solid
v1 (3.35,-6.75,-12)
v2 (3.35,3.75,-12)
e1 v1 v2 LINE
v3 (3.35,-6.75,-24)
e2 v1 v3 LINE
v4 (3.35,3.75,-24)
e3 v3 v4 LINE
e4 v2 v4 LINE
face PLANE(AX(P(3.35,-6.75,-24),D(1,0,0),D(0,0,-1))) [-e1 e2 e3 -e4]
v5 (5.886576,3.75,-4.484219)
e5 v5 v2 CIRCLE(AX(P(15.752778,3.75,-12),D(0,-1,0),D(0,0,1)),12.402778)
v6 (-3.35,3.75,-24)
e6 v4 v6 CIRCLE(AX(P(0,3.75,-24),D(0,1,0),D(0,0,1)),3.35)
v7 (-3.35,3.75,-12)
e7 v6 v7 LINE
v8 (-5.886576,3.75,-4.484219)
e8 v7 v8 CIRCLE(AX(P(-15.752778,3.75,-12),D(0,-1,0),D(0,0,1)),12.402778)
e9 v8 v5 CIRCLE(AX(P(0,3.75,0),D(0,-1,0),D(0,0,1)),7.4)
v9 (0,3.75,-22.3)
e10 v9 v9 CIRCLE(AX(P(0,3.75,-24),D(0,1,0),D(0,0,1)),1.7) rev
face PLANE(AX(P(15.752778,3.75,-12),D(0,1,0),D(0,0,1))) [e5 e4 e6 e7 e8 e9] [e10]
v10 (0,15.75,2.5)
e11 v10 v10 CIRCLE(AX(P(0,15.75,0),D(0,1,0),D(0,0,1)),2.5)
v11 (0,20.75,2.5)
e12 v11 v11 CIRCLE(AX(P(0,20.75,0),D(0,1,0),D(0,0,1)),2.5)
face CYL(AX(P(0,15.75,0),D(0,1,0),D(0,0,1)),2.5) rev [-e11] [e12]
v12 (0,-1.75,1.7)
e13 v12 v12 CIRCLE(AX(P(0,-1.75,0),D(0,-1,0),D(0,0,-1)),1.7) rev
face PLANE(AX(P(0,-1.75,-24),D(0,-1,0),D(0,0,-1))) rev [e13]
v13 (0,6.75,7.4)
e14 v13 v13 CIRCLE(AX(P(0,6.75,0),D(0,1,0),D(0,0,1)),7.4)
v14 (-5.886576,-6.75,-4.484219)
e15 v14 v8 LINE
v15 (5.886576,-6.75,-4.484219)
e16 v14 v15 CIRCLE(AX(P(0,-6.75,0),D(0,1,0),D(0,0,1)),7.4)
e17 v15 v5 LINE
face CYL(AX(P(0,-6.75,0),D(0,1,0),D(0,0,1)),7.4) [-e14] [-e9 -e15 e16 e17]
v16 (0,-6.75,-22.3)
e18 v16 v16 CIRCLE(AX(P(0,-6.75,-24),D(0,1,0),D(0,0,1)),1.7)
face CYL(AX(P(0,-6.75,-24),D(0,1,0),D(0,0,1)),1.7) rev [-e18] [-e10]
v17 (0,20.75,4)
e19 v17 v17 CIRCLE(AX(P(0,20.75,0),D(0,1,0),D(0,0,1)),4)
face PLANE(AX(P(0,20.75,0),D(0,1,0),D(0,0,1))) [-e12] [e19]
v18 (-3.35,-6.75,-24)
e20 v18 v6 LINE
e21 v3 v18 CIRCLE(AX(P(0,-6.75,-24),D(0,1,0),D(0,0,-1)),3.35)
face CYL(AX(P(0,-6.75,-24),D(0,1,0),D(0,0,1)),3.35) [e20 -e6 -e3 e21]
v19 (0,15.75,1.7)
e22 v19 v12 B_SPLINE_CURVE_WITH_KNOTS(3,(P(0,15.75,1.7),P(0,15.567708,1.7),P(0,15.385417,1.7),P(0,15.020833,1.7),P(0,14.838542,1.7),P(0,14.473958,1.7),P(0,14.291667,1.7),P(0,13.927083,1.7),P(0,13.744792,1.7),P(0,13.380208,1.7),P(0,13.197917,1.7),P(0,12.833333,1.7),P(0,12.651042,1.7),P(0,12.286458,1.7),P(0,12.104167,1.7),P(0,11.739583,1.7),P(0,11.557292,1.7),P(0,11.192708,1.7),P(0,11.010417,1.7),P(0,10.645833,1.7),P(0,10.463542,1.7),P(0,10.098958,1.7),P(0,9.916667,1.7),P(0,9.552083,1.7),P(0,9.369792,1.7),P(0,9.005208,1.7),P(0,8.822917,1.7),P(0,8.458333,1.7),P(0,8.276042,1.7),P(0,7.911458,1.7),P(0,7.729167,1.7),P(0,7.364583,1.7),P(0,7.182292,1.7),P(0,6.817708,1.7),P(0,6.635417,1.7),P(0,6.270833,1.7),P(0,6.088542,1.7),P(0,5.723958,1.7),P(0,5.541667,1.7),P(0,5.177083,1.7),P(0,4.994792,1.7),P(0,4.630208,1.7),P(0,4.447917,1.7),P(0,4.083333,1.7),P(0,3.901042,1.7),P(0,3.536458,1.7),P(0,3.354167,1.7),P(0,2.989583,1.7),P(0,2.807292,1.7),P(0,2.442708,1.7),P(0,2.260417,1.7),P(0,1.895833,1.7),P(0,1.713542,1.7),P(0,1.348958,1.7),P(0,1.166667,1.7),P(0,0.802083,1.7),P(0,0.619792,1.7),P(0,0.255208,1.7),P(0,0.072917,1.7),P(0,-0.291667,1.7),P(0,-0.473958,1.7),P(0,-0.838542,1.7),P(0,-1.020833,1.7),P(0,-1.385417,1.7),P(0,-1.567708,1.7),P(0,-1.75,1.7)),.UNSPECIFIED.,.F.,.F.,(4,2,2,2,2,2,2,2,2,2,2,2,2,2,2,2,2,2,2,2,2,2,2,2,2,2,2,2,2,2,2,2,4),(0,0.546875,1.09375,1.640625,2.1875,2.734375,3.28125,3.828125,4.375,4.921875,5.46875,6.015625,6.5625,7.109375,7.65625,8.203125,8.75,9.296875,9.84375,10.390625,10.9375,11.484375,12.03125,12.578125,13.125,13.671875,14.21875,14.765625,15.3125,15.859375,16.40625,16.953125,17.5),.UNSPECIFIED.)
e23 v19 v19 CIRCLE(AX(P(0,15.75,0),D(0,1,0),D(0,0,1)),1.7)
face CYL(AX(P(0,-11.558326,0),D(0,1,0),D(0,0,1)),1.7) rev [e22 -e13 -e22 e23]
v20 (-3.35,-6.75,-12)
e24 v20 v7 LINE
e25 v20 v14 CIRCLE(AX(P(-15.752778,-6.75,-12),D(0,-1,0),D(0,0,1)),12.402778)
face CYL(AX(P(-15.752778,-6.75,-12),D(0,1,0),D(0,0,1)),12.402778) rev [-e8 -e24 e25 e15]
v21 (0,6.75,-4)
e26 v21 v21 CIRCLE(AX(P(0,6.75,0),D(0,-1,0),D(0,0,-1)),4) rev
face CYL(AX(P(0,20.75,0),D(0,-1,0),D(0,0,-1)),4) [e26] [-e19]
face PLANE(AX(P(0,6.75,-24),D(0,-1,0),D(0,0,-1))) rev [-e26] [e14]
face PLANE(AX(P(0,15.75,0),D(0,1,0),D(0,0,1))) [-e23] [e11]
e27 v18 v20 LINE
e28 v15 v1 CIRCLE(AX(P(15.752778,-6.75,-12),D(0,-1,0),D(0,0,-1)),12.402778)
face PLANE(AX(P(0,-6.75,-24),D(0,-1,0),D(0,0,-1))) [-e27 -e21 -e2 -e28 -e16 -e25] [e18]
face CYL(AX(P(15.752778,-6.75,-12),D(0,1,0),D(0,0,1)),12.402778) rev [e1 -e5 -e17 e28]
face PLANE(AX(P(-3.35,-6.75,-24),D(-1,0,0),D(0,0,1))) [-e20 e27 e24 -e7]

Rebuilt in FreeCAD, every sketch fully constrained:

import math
import FreeCAD as App
import Part
import Sketcher

doc = App.newDocument("Part")
params = doc.addObject("Spreadsheet::Sheet", "Params")
for row, (alias, value) in enumerate([
    ("sketch1_diameter", "3.4 mm"),
    ("sketch1_radius", "7.4 mm"),
    ("sketch1_height", "12 mm"),
    ("sketch1_radius2", "3.35 mm"),
    ("pad1_length", "6.75 mm"),
    ("pad1_length2", "6.75 mm"),
    ("sketch2_diameter", "8 mm"),
    ("pad2_length", "14 mm"),
    ("sketch3_diameter", "5 mm"),
    ("pocket1_length", "5 mm"),
    ("sketch4_diameter", "3.4 mm"),
    ("pocket2_length", "17.5 mm"),
    ("sketch5_radius", "7.4 mm"),
    ("sketch5_height", "12 mm"),
    ("sketch5_radius2", "3.35 mm"),
    ("pocket3_length", "3 mm"),
], start=1):
    params.set(f"A{row}", alias)
    params.set(f"B{row}", "=" + value)
    params.setAlias(f"B{row}", alias)

body = doc.addObject("PartDesign::Body", "Body")

# Sketch on XZ plane
sketch1 = body.newObject("Sketcher::SketchObject", "Sketch")
sketch1.AttachmentSupport = (doc.getObject("XZ_Plane"), [""])
sketch1.MapMode = "FlatFace"
sketch1.addGeometry(Part.LineSegment(App.Vector(-3.35, -24, 0), App.Vector(-3.35, -12, 0)), False)
sketch1.addGeometry(Part.ArcOfCircle(Part.Circle(App.Vector(-15.752778, -12, 0), App.Vector(0, 0, 1), 12.402778), math.radians(0), math.radians(37.299078)), False)
sketch1.addGeometry(Part.ArcOfCircle(Part.Circle(App.Vector(0, 0, 0), App.Vector(0, 0, 1), 7.4), math.radians(-37.299078), math.radians(217.299078)), False)
sketch1.addGeometry(Part.ArcOfCircle(Part.Circle(App.Vector(15.752778, -12, 0), App.Vector(0, 0, 1), 12.402778), math.radians(142.700922), math.radians(180)), False)
sketch1.addGeometry(Part.LineSegment(App.Vector(3.35, -12, 0), App.Vector(3.35, -24, 0)), False)
sketch1.addGeometry(Part.ArcOfCircle(Part.Circle(App.Vector(0, -24, 0), App.Vector(0, 0, 1), 3.35), math.radians(180), math.radians(360)), False)
sketch1.addGeometry(Part.Circle(App.Vector(0, -24, 0), App.Vector(0, 0, 1), 1.7), False)
sketch1.addConstraint(Sketcher.Constraint("Tangent", 0, 2, 1, 1))
sketch1.addConstraint(Sketcher.Constraint("Tangent", 1, 2, 2, 2))
sketch1.addConstraint(Sketcher.Constraint("Tangent", 2, 1, 3, 1))
sketch1.addConstraint(Sketcher.Constraint("Tangent", 3, 2, 4, 1))
sketch1.addConstraint(Sketcher.Constraint("Tangent", 4, 2, 5, 2))
sketch1.addConstraint(Sketcher.Constraint("Tangent", 5, 1, 0, 1))
sketch1.addConstraint(Sketcher.Constraint("Vertical", 0))
sketch1.addConstraint(Sketcher.Constraint("Vertical", 4))
sketch1.addConstraint(Sketcher.Constraint("Coincident", 2, 3, -1, 1))
sketch1.addConstraint(Sketcher.Constraint("Coincident", 6, 3, 5, 3))
sketch1.addConstraint(Sketcher.Constraint("Equal", 1, 3))
sketch1.addConstraint(Sketcher.Constraint("PointOnObject", 5, 3, -2))
sketch1.addConstraint(Sketcher.Constraint("Diameter", 6, 3.4))
sketch1.addConstraint(Sketcher.Constraint("Radius", 2, 7.4))
sketch1.addConstraint(Sketcher.Constraint("DistanceY", 0, 1, 0, 2, 12.0))
sketch1.addConstraint(Sketcher.Constraint("Radius", 5, 3.35))
sketch1.addConstraint(Sketcher.Constraint("DistanceY", 1, 3, -1, 1, 12.0))
sketch1.setExpression("Constraints[12]", "Params.sketch1_diameter")
sketch1.setExpression("Constraints[13]", "Params.sketch1_radius")
sketch1.setExpression("Constraints[14]", "Params.sketch1_height")
sketch1.setExpression("Constraints[15]", "Params.sketch1_radius2")
pad1 = body.newObject("PartDesign::Pad", "Pad")
pad1.Profile = sketch1
pad1.Type = "TwoLengths"
pad1.setExpression("Length", "Params.pad1_length")
pad1.setExpression("Length2", "Params.pad1_length2")
pad1.Reversed = True

# Sketch on XZ plane
sketch2 = body.newObject("Sketcher::SketchObject", "Sketch001")
sketch2.AttachmentSupport = (doc.getObject("XZ_Plane"), [""])
sketch2.MapMode = "FlatFace"
sketch2.AttachmentOffset = App.Placement(App.Vector(0, 0, -6.75), App.Rotation())
sketch2.addGeometry(Part.Circle(App.Vector(0, 0, 0), App.Vector(0, 0, 1), 4), False)
sketch2.addConstraint(Sketcher.Constraint("Coincident", 0, 3, -1, 1))
sketch2.addConstraint(Sketcher.Constraint("Diameter", 0, 8.0))
sketch2.setExpression("Constraints[1]", "Params.sketch2_diameter")
pad2 = body.newObject("PartDesign::Pad", "Pad001")
pad2.Profile = sketch2
pad2.setExpression("Length", "Params.pad2_length")
pad2.Reversed = True

# Sketch on XZ plane
sketch3 = body.newObject("Sketcher::SketchObject", "Sketch002")
sketch3.AttachmentSupport = (doc.getObject("XZ_Plane"), [""])
sketch3.MapMode = "FlatFace"
sketch3.AttachmentOffset = App.Placement(App.Vector(0, 0, -20.75), App.Rotation())
sketch3.addGeometry(Part.Circle(App.Vector(0, 0, 0), App.Vector(0, 0, 1), 2.5), False)
sketch3.addConstraint(Sketcher.Constraint("Coincident", 0, 3, -1, 1))
sketch3.addConstraint(Sketcher.Constraint("Diameter", 0, 5.0))
sketch3.setExpression("Constraints[1]", "Params.sketch3_diameter")
pocket1 = body.newObject("PartDesign::Pocket", "Pocket")
pocket1.Profile = sketch3
pocket1.setExpression("Length", "Params.pocket1_length")
pocket1.Reversed = True

# Sketch on XZ plane
sketch4 = body.newObject("Sketcher::SketchObject", "Sketch003")
sketch4.AttachmentSupport = (doc.getObject("XZ_Plane"), [""])
sketch4.MapMode = "FlatFace"
sketch4.AttachmentOffset = App.Placement(App.Vector(0, 0, -15.75), App.Rotation())
sketch4.addGeometry(Part.Circle(App.Vector(0, 0, 0), App.Vector(0, 0, 1), 1.7), False)
sketch4.addConstraint(Sketcher.Constraint("Coincident", 0, 3, -1, 1))
sketch4.addConstraint(Sketcher.Constraint("Diameter", 0, 3.4))
sketch4.setExpression("Constraints[1]", "Params.sketch4_diameter")
pocket2 = body.newObject("PartDesign::Pocket", "Pocket001")
pocket2.Profile = sketch4
pocket2.setExpression("Length", "Params.pocket2_length")
pocket2.Reversed = True

# Sketch on XZ plane
sketch5 = body.newObject("Sketcher::SketchObject", "Sketch004")
sketch5.AttachmentSupport = (doc.getObject("XZ_Plane"), [""])
sketch5.MapMode = "FlatFace"
sketch5.AttachmentOffset = App.Placement(App.Vector(0, 0, -3.75), App.Rotation())
sketch5.addGeometry(Part.LineSegment(App.Vector(3.35, -12, 0), App.Vector(3.35, -24, 0)), False)
sketch5.addGeometry(Part.ArcOfCircle(Part.Circle(App.Vector(0, -24, 0), App.Vector(0, 0, 1), 3.35), math.radians(180), math.radians(360)), False)
sketch5.addGeometry(Part.LineSegment(App.Vector(-3.35, -24, 0), App.Vector(-3.35, -12, 0)), False)
sketch5.addGeometry(Part.ArcOfCircle(Part.Circle(App.Vector(-15.752778, -12, 0), App.Vector(0, 0, 1), 12.402778), math.radians(0), math.radians(37.299078)), False)
sketch5.addGeometry(Part.ArcOfCircle(Part.Circle(App.Vector(0, 0, 0), App.Vector(0, 0, 1), 7.4), math.radians(-142.700922), math.radians(-37.299078)), False)
sketch5.addGeometry(Part.ArcOfCircle(Part.Circle(App.Vector(15.752778, -12, 0), App.Vector(0, 0, 1), 12.402778), math.radians(142.700922), math.radians(180)), False)
sketch5.addConstraint(Sketcher.Constraint("Tangent", 0, 2, 1, 2))
sketch5.addConstraint(Sketcher.Constraint("Tangent", 1, 1, 2, 1))
sketch5.addConstraint(Sketcher.Constraint("Tangent", 2, 2, 3, 1))
sketch5.addConstraint(Sketcher.Constraint("Tangent", 3, 2, 4, 1))
sketch5.addConstraint(Sketcher.Constraint("Tangent", 4, 2, 5, 1))
sketch5.addConstraint(Sketcher.Constraint("Tangent", 5, 2, 0, 1))
sketch5.addConstraint(Sketcher.Constraint("Vertical", 0))
sketch5.addConstraint(Sketcher.Constraint("Vertical", 2))
sketch5.addConstraint(Sketcher.Constraint("Coincident", 4, 3, -1, 1))
sketch5.addConstraint(Sketcher.Constraint("Equal", 3, 5))
sketch5.addConstraint(Sketcher.Constraint("PointOnObject", 1, 3, -2))
sketch5.addConstraint(Sketcher.Constraint("Radius", 4, 7.4))
sketch5.addConstraint(Sketcher.Constraint("DistanceY", 0, 2, 0, 1, 12.0))
sketch5.addConstraint(Sketcher.Constraint("Radius", 1, 3.35))
sketch5.addConstraint(Sketcher.Constraint("DistanceY", 1, 3, -1, 1, 24.0))
sketch5.setExpression("Constraints[11]", "Params.sketch5_radius")
sketch5.setExpression("Constraints[12]", "Params.sketch5_height")
sketch5.setExpression("Constraints[13]", "Params.sketch5_radius2")
pocket3 = body.newObject("PartDesign::Pocket", "Pocket002")
pocket3.Profile = sketch5
pocket3.setExpression("Length", "Params.pocket3_length")

doc.recompute()
